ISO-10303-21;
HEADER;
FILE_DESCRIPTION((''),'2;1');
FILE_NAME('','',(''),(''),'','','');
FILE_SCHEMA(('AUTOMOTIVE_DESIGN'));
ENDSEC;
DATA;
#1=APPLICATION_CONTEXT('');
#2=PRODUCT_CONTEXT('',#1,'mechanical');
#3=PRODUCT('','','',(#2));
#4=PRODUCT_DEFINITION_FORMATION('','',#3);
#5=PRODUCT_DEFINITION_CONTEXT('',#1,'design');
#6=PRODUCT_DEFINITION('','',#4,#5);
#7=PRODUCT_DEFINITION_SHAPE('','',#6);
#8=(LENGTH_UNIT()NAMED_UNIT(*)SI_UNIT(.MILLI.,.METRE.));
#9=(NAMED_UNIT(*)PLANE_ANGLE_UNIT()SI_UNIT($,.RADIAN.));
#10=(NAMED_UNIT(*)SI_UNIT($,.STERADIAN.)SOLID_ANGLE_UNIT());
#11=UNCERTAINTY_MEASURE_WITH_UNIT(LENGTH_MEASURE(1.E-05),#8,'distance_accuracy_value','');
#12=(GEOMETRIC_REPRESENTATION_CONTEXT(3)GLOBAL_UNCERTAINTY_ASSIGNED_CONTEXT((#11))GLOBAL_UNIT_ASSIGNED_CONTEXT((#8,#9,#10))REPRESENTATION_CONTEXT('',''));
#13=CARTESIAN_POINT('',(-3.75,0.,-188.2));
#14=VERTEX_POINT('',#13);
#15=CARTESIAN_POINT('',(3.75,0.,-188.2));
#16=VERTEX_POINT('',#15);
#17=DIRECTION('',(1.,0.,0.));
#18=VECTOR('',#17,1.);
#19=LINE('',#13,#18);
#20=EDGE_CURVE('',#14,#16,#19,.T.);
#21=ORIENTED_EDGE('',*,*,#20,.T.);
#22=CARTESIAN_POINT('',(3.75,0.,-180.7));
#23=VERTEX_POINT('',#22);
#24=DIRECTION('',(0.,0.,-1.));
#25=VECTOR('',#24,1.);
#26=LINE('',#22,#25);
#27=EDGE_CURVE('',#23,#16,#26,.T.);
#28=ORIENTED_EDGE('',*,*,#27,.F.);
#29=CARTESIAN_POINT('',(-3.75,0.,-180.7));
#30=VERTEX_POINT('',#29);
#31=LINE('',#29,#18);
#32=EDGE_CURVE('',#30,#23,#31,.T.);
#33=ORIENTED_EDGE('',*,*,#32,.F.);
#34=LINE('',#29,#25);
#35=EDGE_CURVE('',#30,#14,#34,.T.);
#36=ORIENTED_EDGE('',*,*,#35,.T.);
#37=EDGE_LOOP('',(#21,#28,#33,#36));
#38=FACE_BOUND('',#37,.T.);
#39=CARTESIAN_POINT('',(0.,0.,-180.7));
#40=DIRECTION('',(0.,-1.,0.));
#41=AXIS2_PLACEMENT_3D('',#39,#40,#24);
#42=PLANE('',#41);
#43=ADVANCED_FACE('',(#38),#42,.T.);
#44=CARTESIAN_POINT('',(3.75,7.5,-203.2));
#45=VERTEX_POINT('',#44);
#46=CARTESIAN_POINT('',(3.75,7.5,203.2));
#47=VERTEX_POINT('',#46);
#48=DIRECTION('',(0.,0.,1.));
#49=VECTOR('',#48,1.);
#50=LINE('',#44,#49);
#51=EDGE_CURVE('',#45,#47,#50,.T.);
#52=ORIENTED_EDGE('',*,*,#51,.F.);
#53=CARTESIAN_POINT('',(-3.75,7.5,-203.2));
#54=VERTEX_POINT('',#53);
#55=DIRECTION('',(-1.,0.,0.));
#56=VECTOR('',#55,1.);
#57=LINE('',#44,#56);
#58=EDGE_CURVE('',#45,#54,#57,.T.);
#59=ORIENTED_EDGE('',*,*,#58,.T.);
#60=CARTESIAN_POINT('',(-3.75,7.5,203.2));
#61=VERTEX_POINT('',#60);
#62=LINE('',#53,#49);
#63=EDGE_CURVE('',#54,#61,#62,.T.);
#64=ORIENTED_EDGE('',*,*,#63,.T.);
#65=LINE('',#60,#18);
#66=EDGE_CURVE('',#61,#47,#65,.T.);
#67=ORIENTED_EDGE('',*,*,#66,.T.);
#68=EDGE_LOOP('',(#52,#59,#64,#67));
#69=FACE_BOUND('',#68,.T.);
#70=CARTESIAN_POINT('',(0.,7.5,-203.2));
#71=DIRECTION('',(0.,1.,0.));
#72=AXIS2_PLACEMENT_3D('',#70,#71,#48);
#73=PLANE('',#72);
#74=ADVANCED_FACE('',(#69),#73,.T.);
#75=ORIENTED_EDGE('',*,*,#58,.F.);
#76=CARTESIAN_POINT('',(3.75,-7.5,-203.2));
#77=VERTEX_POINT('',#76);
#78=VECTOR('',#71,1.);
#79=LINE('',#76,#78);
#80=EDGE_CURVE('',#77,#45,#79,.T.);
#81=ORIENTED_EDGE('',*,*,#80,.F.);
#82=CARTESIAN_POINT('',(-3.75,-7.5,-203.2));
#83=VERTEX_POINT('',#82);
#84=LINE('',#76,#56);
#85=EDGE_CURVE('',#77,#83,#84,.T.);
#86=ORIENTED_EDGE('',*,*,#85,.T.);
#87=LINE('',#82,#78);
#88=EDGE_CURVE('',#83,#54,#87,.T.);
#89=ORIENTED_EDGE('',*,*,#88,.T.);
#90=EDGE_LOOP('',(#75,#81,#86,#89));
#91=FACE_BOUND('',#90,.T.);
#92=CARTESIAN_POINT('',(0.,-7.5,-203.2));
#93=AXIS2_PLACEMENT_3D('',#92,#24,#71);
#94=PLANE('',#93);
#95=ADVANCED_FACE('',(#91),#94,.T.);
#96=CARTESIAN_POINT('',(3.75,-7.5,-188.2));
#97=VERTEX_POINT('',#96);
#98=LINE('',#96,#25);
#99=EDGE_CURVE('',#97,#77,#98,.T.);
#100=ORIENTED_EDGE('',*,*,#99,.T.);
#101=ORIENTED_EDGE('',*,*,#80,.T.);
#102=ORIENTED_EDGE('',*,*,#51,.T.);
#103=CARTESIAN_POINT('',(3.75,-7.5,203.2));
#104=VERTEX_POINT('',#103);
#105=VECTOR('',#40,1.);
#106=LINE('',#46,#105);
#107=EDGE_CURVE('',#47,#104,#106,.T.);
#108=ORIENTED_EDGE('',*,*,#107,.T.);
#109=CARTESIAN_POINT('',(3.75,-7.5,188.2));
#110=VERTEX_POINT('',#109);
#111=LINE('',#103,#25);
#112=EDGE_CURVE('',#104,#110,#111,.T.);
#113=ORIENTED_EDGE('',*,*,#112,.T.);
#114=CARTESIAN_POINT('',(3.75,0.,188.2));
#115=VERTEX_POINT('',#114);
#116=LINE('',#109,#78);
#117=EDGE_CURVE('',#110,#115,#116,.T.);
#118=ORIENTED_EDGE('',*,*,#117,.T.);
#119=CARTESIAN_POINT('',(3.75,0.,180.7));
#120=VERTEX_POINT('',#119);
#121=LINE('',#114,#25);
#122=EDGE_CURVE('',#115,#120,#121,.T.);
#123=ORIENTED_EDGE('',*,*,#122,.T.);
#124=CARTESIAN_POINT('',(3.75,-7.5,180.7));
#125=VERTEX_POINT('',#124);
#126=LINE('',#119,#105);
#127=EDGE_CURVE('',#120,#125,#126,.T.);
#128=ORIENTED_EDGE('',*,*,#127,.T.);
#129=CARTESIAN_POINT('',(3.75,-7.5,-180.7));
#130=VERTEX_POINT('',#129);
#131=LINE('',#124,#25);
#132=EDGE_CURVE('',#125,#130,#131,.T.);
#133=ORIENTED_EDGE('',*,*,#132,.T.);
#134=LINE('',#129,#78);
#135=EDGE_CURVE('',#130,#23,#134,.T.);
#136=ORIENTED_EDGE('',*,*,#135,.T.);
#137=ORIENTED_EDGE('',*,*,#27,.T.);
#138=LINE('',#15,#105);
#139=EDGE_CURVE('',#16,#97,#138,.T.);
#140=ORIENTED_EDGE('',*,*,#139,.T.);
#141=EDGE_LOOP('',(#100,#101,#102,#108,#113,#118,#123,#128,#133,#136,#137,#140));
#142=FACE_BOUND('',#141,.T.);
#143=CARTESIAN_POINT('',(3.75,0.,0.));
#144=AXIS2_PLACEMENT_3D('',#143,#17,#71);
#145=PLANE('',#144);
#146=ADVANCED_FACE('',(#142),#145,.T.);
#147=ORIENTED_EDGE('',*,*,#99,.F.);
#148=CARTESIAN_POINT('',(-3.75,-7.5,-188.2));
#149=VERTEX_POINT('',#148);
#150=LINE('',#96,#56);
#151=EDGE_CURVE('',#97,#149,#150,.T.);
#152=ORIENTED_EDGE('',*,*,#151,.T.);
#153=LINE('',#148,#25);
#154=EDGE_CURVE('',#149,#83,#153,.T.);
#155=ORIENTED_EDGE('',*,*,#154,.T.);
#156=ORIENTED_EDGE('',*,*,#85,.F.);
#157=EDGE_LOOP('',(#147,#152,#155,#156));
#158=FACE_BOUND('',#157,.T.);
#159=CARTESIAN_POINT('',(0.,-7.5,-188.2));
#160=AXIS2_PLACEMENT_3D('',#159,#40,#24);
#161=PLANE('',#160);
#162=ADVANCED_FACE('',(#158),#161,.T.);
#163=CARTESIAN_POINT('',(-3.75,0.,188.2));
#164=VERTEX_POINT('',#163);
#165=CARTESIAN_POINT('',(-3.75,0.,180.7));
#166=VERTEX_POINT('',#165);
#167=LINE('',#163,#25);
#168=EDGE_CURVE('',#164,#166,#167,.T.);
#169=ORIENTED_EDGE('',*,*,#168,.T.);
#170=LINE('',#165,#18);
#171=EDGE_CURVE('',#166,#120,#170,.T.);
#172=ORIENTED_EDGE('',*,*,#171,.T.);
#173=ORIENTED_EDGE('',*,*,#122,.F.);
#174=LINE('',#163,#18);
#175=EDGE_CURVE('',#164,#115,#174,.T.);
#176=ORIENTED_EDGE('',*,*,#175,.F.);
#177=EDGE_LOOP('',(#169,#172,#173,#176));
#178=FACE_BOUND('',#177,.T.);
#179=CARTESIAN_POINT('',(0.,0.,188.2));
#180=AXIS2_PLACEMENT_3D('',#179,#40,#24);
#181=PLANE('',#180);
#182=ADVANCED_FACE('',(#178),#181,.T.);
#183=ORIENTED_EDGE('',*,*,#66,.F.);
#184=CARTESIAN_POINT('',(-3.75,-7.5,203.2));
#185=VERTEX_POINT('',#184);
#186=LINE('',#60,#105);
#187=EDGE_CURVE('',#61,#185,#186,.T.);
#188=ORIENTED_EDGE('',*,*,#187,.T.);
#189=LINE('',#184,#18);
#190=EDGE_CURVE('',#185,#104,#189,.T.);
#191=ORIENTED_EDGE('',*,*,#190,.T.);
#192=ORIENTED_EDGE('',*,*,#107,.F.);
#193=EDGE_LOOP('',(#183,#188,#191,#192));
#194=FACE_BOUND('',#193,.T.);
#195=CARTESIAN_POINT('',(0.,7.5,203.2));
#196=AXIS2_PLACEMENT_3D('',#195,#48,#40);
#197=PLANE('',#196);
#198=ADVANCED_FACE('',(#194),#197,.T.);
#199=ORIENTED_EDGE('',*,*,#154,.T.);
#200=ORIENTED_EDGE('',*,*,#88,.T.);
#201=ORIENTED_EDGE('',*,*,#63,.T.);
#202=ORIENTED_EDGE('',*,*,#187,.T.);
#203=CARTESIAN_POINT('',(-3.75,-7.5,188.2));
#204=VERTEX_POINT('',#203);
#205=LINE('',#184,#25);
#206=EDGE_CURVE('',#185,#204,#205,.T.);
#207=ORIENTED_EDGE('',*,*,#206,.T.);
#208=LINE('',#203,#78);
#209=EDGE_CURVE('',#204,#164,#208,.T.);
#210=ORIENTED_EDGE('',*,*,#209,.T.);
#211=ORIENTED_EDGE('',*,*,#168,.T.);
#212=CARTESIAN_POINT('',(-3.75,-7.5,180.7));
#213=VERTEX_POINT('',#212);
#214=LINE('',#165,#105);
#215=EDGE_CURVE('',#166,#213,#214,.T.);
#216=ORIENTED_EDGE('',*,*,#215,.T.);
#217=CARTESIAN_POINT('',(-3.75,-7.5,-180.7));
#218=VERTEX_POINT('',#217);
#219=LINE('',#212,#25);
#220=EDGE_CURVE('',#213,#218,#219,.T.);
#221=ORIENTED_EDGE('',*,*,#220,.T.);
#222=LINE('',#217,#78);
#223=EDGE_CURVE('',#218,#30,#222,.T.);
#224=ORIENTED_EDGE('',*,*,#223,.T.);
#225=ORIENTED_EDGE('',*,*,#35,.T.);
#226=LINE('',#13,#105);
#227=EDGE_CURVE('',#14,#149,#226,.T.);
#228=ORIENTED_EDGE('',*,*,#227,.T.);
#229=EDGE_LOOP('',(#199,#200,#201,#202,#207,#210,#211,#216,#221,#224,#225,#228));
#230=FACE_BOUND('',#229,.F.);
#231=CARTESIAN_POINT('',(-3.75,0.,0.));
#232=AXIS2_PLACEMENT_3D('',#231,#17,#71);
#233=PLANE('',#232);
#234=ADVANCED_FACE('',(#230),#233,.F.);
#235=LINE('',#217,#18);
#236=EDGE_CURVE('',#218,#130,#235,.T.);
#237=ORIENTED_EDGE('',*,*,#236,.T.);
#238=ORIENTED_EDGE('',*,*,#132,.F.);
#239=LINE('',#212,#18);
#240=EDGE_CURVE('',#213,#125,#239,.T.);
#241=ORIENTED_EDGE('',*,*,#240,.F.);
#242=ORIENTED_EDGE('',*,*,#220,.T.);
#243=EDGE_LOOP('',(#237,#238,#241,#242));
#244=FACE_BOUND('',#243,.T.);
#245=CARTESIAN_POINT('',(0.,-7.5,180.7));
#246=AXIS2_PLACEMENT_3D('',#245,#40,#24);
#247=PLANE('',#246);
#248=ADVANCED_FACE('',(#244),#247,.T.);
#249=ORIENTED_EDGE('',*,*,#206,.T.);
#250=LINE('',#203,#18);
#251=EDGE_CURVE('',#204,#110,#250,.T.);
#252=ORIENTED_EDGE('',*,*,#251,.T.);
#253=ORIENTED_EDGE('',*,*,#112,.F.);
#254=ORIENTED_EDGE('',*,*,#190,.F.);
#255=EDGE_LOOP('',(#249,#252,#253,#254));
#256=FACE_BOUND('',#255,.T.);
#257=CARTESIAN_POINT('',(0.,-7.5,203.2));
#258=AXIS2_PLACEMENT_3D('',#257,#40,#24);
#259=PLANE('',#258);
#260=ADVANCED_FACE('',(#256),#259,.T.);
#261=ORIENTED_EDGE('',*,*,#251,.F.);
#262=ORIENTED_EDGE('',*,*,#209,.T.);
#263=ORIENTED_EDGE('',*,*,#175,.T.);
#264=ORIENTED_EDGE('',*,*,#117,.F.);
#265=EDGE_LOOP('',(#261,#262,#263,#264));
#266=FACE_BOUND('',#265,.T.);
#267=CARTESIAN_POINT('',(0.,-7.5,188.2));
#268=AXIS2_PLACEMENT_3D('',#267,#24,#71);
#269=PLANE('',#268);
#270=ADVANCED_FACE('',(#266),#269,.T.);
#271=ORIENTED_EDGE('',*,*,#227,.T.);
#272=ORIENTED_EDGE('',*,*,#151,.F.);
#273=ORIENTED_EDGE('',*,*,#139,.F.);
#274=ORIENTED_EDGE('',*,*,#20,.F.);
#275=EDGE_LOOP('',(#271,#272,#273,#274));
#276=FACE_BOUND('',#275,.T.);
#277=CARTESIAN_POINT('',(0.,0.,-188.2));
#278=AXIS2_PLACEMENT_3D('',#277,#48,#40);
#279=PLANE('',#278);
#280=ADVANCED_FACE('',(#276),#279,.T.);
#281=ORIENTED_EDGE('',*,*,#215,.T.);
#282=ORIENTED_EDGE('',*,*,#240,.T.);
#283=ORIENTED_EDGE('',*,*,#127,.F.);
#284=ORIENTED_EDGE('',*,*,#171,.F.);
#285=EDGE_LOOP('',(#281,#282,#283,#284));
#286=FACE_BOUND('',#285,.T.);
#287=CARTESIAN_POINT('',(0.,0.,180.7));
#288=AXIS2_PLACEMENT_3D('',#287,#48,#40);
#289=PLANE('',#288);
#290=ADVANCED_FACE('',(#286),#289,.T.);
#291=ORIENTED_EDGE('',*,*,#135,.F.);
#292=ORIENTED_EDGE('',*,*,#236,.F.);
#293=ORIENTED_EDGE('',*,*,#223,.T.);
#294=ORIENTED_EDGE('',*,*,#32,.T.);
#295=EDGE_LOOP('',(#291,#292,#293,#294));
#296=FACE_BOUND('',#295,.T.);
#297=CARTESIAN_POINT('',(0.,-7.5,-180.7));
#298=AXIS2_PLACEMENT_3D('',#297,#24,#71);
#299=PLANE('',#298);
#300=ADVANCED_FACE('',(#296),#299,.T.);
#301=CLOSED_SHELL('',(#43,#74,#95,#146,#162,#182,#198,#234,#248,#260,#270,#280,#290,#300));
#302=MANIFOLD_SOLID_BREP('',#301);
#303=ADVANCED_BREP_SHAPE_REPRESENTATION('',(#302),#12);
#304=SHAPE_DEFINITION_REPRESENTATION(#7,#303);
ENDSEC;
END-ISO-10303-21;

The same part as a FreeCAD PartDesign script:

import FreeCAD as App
import Part
import Sketcher
Q = App.Units.Quantity

doc = App.newDocument("Part")
body = doc.addObject("PartDesign::Body", "Body")

sketch1 = body.newObject("Sketcher::SketchObject", "Sketch")
sketch1.AttachmentSupport = (doc.getObject("YZ_Plane"), [""])
sketch1.MapMode = "FlatFace"
sketch1.addGeometry([
    Part.LineSegment(App.Vector(8, -203, 0), App.Vector(8, 203, 0)),
    Part.LineSegment(App.Vector(8, 203, 0), App.Vector(-8, 203, 0)),
    Part.LineSegment(App.Vector(-8, 203, 0), App.Vector(-8, 188, 0)),
    Part.LineSegment(App.Vector(-8, 188, 0), App.Vector(0, 188, 0)),
    Part.LineSegment(App.Vector(0, 188, 0), App.Vector(0, 181, 0)),
    Part.LineSegment(App.Vector(0, 181, 0), App.Vector(-8, 181, 0)),
    Part.LineSegment(App.Vector(-8, 181, 0), App.Vector(-8, -181, 0)),
    Part.LineSegment(App.Vector(-8, -181, 0), App.Vector(0, -181, 0)),
    Part.LineSegment(App.Vector(0, -181, 0), App.Vector(0, -188, 0)),
    Part.LineSegment(App.Vector(0, -188, 0), App.Vector(-8, -188, 0)),
    Part.LineSegment(App.Vector(-8, -188, 0), App.Vector(-8, -203, 0)),
    Part.LineSegment(App.Vector(-8, -203, 0), App.Vector(8, -203, 0)),
], False)
sketch1.addConstraint([
    Sketcher.Constraint("Coincident", 0, 2, 1, 1),
    Sketcher.Constraint("Coincident", 1, 2, 2, 1),
    Sketcher.Constraint("Coincident", 2, 2, 3, 1),
    Sketcher.Constraint("Coincident", 3, 2, 4, 1),
    Sketcher.Constraint("Coincident", 4, 2, 5, 1),
    Sketcher.Constraint("Coincident", 5, 2, 6, 1),
    Sketcher.Constraint("Coincident", 6, 2, 7, 1),
    Sketcher.Constraint("Coincident", 7, 2, 8, 1),
    Sketcher.Constraint("Coincident", 8, 2, 9, 1),
    Sketcher.Constraint("Coincident", 9, 2, 10, 1),
    Sketcher.Constraint("Coincident", 10, 2, 11, 1),
    Sketcher.Constraint("Coincident", 11, 2, 0, 1),
    Sketcher.Constraint("Vertical", 0),
    Sketcher.Constraint("Horizontal", 1),
    Sketcher.Constraint("Vertical", 2),
    Sketcher.Constraint("Horizontal", 3),
    Sketcher.Constraint("Vertical", 4),
    Sketcher.Constraint("Horizontal", 5),
    Sketcher.Constraint("Vertical", 6),
    Sketcher.Constraint("Horizontal", 7),
    Sketcher.Constraint("Vertical", 8),
    Sketcher.Constraint("Horizontal", 9),
    Sketcher.Constraint("Vertical", 10),
    Sketcher.Constraint("Horizontal", 11),
    Sketcher.Constraint("Symmetric", 4, 2, 7, 2, -1, 1),
    Sketcher.Constraint("Symmetric", 0, 2, 10, 2, -1, 1),
    Sketcher.Constraint("Symmetric", 3, 2, 8, 2, -1),
    Sketcher.Constraint("Vertical", 2, 2, 5, 2),
    Sketcher.Constraint("Vertical", 6, 2, 9, 2),
    Sketcher.Constraint("Equal", 11, 2),
    Sketcher.Constraint("Equal", 9, 4),
    Sketcher.Constraint("DistanceX", 1, 2, 1, 1, Q("15 mm")),
    Sketcher.Constraint("DistanceY", 0, 1, 0, 2, Q("406.4 mm")),
])
pad1 = body.newObject("PartDesign::Pad", "Pad")
pad1.Profile = sketch1
pad1.Length = 7.5
pad1.Midplane = True

doc.recompute()
